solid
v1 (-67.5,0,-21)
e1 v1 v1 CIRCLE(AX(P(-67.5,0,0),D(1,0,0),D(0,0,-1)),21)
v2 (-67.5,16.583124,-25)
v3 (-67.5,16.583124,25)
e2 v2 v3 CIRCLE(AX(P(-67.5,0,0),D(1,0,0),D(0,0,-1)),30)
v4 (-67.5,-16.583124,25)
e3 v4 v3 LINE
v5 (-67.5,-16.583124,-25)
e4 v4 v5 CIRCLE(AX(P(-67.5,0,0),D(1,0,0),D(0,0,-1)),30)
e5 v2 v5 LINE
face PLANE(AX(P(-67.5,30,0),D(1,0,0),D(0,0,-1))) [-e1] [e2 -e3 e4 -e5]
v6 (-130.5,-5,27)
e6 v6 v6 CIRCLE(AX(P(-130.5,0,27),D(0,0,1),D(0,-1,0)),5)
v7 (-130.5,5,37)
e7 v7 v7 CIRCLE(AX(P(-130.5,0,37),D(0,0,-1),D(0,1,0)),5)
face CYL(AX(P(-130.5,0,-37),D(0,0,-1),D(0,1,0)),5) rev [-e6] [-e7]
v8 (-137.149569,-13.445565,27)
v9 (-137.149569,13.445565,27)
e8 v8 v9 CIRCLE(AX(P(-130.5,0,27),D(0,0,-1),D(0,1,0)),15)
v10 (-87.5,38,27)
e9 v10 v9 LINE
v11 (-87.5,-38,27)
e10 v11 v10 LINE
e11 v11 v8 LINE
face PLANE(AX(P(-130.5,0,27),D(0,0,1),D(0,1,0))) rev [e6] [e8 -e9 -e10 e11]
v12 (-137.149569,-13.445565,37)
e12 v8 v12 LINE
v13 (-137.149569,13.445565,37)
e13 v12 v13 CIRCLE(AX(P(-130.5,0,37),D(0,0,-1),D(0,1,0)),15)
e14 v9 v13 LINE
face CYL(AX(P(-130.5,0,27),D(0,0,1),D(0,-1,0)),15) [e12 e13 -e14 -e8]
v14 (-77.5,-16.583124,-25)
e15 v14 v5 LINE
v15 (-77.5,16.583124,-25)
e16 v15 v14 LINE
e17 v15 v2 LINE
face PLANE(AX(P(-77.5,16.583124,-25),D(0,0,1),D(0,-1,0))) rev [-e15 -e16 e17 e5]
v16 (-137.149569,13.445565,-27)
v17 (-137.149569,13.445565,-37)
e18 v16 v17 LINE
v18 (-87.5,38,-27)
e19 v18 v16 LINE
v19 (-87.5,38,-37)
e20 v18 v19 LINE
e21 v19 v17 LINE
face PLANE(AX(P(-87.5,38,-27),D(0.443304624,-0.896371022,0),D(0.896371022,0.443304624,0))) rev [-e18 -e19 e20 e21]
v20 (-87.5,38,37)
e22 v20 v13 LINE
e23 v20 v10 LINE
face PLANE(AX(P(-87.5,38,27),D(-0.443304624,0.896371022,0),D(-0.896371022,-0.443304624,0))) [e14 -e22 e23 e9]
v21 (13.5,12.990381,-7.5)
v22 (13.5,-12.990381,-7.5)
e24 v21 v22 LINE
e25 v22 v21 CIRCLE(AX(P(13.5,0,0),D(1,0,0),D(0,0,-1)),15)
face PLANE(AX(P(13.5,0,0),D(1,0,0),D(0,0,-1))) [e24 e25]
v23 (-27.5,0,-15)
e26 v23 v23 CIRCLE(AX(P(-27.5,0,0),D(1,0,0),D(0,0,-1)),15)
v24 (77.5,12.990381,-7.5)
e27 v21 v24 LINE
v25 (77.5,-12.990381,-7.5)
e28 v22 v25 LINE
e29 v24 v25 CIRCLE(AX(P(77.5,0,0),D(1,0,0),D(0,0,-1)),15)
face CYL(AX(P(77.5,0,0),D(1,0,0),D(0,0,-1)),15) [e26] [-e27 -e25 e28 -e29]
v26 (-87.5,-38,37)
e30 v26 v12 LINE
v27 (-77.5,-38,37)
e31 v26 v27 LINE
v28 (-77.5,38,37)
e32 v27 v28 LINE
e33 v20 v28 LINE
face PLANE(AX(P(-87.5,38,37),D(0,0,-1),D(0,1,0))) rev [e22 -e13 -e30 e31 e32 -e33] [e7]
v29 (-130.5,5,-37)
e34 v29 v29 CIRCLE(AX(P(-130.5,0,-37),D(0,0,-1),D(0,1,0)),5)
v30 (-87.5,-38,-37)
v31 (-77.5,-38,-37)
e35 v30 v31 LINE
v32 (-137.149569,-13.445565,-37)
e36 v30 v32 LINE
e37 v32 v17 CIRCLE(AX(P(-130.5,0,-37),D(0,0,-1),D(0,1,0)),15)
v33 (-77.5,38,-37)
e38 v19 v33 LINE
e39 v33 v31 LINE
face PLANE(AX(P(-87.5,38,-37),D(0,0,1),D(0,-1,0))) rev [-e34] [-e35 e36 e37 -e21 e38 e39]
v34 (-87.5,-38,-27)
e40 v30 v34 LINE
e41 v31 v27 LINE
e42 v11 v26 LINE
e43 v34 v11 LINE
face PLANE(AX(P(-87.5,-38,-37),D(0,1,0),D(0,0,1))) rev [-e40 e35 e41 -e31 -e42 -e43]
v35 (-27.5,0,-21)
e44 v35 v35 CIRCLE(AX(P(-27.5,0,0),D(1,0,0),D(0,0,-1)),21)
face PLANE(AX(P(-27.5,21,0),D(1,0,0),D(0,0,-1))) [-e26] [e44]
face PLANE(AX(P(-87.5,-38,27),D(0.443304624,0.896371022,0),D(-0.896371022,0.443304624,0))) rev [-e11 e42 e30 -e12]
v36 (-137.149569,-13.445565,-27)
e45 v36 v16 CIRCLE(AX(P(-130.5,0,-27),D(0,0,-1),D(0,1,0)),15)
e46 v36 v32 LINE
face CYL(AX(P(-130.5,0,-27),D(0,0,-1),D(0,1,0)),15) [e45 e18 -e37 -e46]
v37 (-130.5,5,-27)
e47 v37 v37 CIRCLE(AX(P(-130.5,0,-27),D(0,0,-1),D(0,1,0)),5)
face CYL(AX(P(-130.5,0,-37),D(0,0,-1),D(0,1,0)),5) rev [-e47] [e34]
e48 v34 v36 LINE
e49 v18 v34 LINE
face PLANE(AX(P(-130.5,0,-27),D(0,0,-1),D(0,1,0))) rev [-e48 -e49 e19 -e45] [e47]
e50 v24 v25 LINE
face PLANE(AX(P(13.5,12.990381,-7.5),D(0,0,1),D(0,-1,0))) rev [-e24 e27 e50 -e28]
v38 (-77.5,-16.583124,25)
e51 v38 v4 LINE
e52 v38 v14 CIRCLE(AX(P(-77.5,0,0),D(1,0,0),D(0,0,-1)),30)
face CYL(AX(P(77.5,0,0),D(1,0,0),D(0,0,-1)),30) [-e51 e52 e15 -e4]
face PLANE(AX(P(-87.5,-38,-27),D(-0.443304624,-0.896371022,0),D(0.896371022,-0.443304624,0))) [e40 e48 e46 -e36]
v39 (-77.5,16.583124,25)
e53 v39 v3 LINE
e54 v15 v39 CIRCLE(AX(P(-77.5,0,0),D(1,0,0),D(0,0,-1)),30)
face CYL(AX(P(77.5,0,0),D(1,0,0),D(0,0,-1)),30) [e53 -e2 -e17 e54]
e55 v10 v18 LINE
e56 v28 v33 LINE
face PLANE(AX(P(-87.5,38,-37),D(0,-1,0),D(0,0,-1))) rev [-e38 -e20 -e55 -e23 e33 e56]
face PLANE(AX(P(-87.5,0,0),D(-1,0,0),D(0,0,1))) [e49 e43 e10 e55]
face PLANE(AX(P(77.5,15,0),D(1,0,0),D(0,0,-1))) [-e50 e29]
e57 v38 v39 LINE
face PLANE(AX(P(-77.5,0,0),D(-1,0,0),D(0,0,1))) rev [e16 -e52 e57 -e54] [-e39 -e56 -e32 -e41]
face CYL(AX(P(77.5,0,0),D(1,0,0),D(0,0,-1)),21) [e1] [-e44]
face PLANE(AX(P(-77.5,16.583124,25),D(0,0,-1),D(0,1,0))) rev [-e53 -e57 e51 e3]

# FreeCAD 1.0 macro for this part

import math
import FreeCAD as App
import Part
import Sketcher
Q = App.Units.Quantity


def add_polygon(sketch, points):
    """Adds a closed chain of lines whose ends are joined by coincident constraints."""
    first, n = sketch.GeometryCount, len(points)
    for a, b in zip(points, points[1:] + points[:1]):
        sketch.addGeometry(Part.LineSegment(App.Vector(*a, 0), App.Vector(*b, 0)), False)
    for i in range(n):
        sketch.addConstraint(Sketcher.Constraint("Coincident", first + i, 2, first + (i + 1) % n, 1))

doc = App.newDocument("Part")
body = doc.addObject("PartDesign::Body", "Body")

sketch1 = doc.addObject("Sketcher::SketchObject", "Sketch")
body.addObject(sketch1)
sketch1.AttachmentSupport = (doc.XY_Plane, [""])
sketch1.MapMode = "FlatFace"
add_polygon(sketch1, [(-78, 30), (-78, 0), (78, 0), (78, 15), (-28, 15), (-28, 21), (-68, 21), (-68, 30)])
sketch1.addConstraint([
    Sketcher.Constraint("Vertical", 0),
    Sketcher.Constraint("Horizontal", 1),
    Sketcher.Constraint("Vertical", 2),
    Sketcher.Constraint("Horizontal", 3),
    Sketcher.Constraint("Vertical", 4),
    Sketcher.Constraint("Horizontal", 5),
    Sketcher.Constraint("Vertical", 6),
    Sketcher.Constraint("Horizontal", 7),
    Sketcher.Constraint("Symmetric", 0, 2, 1, 2, -1, 1),
    Sketcher.Constraint("DistanceX", 1, 1, 1, 2, Q("155 mm")),
    Sketcher.Constraint("DistanceX", 3, 2, 3, 1, Q("105 mm")),
    Sketcher.Constraint("DistanceX", 5, 2, 5, 1, Q("40 mm")),
    Sketcher.Constraint("DistanceY", 0, 2, 0, 1, Q("30 mm")),
    Sketcher.Constraint("DistanceY", 2, 1, 2, 2, Q("15 mm")),
    Sketcher.Constraint("DistanceY", 4, 1, 4, 2, Q("6 mm")),
])
revolution = doc.addObject("PartDesign::Revolution", "Revolution")
body.addObject(revolution)
revolution.Profile = sketch1
revolution.ReferenceAxis = (sketch1, ["H_Axis"])
revolution.Angle = 360

sketch2 = doc.addObject("Sketcher::SketchObject", "Sketch001")
body.addObject(sketch2)
sketch2.AttachmentSupport = (doc.YZ_Plane, [""])
sketch2.MapMode = "FlatFace"
sketch2.AttachmentOffset = App.Placement(App.Vector(0, 0, -77.5), App.Rotation())
add_polygon(sketch2, [(38, -37), (-38, -37), (-38, 37), (38, 37)])
sketch2.addConstraint([
    Sketcher.Constraint("Horizontal", 0),
    Sketcher.Constraint("Vertical", 1),
    Sketcher.Constraint("Horizontal", 2),
    Sketcher.Constraint("Vertical", 3),
    Sketcher.Constraint("Symmetric", 0, 2, 2, 2, -1, 1),
    Sketcher.Constraint("DistanceX", 0, 2, 0, 1, Q("76 mm")),
    Sketcher.Constraint("DistanceY", 1, 1, 1, 2, Q("74 mm")),
])
pad1 = doc.addObject("PartDesign::Pad", "Pad")
body.addObject(pad1)
pad1.Profile = sketch2
pad1.Length = 10
pad1.Reversed = True

sketch3 = doc.addObject("Sketcher::SketchObject", "Sketch002")
body.addObject(sketch3)
sketch3.AttachmentSupport = (doc.XY_Plane, [""])
sketch3.MapMode = "FlatFace"
sketch3.AttachmentOffset = App.Placement(App.Vector(0, 0, -37), App.Rotation())
sketch3.addGeometry([
    Part.LineSegment(App.Vector(-137, 13, 0), App.Vector(-88, 38, 0)),
    Part.LineSegment(App.Vector(-88, 38, 0), App.Vector(-78, 38, 0)),
    Part.LineSegment(App.Vector(-78, 38, 0), App.Vector(-78, -38, 0)),
    Part.LineSegment(App.Vector(-78, -38, 0), App.Vector(-88, -38, 0)),
    Part.LineSegment(App.Vector(-88, -38, 0), App.Vector(-137, -13, 0)),
    Part.ArcOfCircle(Part.Circle(App.Vector(-130, 0, 0), App.Vector(0, 0, 1), 15), math.radians(116), math.radians(244)),
], False)
sketch3.addConstraint([
    Sketcher.Constraint("Coincident", 0, 2, 1, 1),
    Sketcher.Constraint("Coincident", 1, 2, 2, 1),
    Sketcher.Constraint("Coincident", 2, 2, 3, 1),
    Sketcher.Constraint("Coincident", 3, 2, 4, 1),
    Sketcher.Constraint("Tangent", 4, 2, 5, 2),
    Sketcher.Constraint("Tangent", 5, 1, 0, 1),
    Sketcher.Constraint("Horizontal", 1),
    Sketcher.Constraint("Vertical", 2),
    Sketcher.Constraint("Horizontal", 3),
    Sketcher.Constraint("Symmetric", 0, 2, 3, 2, -1),
    Sketcher.Constraint("PointOnObject", 5, 3, -1),
    Sketcher.Constraint("Radius", 5, Q("15 mm")),
    Sketcher.Constraint("DistanceX", 1, 1, 1, 2, Q("10 mm")),
    Sketcher.Constraint("DistanceY", 2, 2, 2, 1, Q("76 mm")),
    Sketcher.Constraint("DistanceX", 5, 3, 0, 2, Q("43 mm")),
    Sketcher.Constraint("DistanceX", 5, 3, -1, 1, Q("130.5 mm")),
])
pad2 = doc.addObject("PartDesign::Pad", "Pad001")
body.addObject(pad2)
pad2.Profile = sketch3
pad2.Length = 10
doc.recompute()

mirrored = doc.addObject("PartDesign::Mirrored", "Mirrored")
body.addObject(mirrored)
mirrored.Originals = [pad2]
mirrored.MirrorPlane = (doc.XY_Plane, [""])
body.Tip = mirrored

sketch4 = doc.addObject("Sketcher::SketchObject", "Sketch003")
body.addObject(sketch4)
sketch4.AttachmentSupport = (doc.XY_Plane, [""])
sketch4.MapMode = "FlatFace"
sketch4.AttachmentOffset = App.Placement(App.Vector(0, 0, -37), App.Rotation())
sketch4.addGeometry(Part.Circle(App.Vector(-130, 0, 0), App.Vector(0, 0, 1), 5), False)
sketch4.addConstraint([
    Sketcher.Constraint("PointOnObject", 0, 3, -1),
    Sketcher.Constraint("Diameter", 0, Q("10 mm")),
    Sketcher.Constraint("DistanceX", 0, 3, -1, 1, Q("130.5 mm")),
])
doc.recompute()
hole = doc.addObject("PartDesign::Hole", "Hole")
body.addObject(hole)
hole.Profile = sketch4
hole.ThreadType = "None"
hole.Diameter = 10
hole.DepthType = "ThroughAll"
hole.Reversed = True

sketch5 = doc.addObject("Sketcher::SketchObject", "Sketch004")
body.addObject(sketch5)
sketch5.AttachmentSupport = (doc.YZ_Plane, [""])
sketch5.MapMode = "FlatFace"
sketch5.AttachmentOffset = App.Placement(App.Vector(0, 0, -67.5), App.Rotation())
sketch5.addGeometry([
    Part.LineSegment(App.Vector(17, -25, 0), App.Vector(-17, -25, 0)),
    Part.ArcOfCircle(Part.Circle(App.Vector(0, 0, 0), App.Vector(0, 0, 1), 30), math.radians(-124), math.radians(-56)),
    Part.LineSegment(App.Vector(-17, 25, 0), App.Vector(17, 25, 0)),
    Part.ArcOfCircle(Part.Circle(App.Vector(0, 0, 0), App.Vector(0, 0, 1), 30), math.radians(56), math.radians(124)),
], False)
sketch5.addConstraint([
    Sketcher.Constraint("Coincident", 0, 1, 1, 2),
    Sketcher.Constraint("Coincident", 1, 1, 0, 2),
    Sketcher.Constraint("Coincident", 2, 1, 3, 2),
    Sketcher.Constraint("Coincident", 3, 1, 2, 2),
    Sketcher.Constraint("Horizontal", 0),
    Sketcher.Constraint("Horizontal", 2),
    Sketcher.Constraint("Coincident", 1, 3, -1, 1),
    Sketcher.Constraint("Coincident", 3, 3, -1, 1),
    Sketcher.Constraint("Equal", 1, 3),
    Sketcher.Constraint("Vertical", 1, 1, 2, 1),
    Sketcher.Constraint("Radius", 1, Q("30 mm")),
    Sketcher.Constraint("DistanceY", 0, 1, -1, 1, Q("25 mm")),
])
pocket1 = doc.addObject("PartDesign::Pocket", "Pocket")
body.addObject(pocket1)
pocket1.Profile = sketch5
pocket1.Length = 10

sketch6 = doc.addObject("Sketcher::SketchObject", "Sketch005")
body.addObject(sketch6)
sketch6.AttachmentSupport = (doc.YZ_Plane, [""])
sketch6.MapMode = "FlatFace"
sketch6.AttachmentOffset = App.Placement(App.Vector(0, 0, 77.5), App.Rotation())
sketch6.addGeometry([
    Part.LineSegment(App.Vector(13, -8, 0), App.Vector(-13, -8, 0)),
    Part.ArcOfCircle(Part.Circle(App.Vector(0, 0, 0), App.Vector(0, 0, 1), 15), math.radians(-150), math.radians(-30)),
], False)
sketch6.addConstraint([
    Sketcher.Constraint("Coincident", 0, 1, 1, 2),
    Sketcher.Constraint("Coincident", 1, 1, 0, 2),
    Sketcher.Constraint("Horizontal", 0),
    Sketcher.Constraint("Coincident", 1, 3, -1, 1),
    Sketcher.Constraint("Radius", 1, Q("15 mm")),
    Sketcher.Constraint("DistanceY", 0, 1, -1, 1, Q("7.5 mm")),
])
pocket2 = doc.addObject("PartDesign::Pocket", "Pocket001")
body.addObject(pocket2)
pocket2.Profile = sketch6
pocket2.Length = 64

doc.recompute()
